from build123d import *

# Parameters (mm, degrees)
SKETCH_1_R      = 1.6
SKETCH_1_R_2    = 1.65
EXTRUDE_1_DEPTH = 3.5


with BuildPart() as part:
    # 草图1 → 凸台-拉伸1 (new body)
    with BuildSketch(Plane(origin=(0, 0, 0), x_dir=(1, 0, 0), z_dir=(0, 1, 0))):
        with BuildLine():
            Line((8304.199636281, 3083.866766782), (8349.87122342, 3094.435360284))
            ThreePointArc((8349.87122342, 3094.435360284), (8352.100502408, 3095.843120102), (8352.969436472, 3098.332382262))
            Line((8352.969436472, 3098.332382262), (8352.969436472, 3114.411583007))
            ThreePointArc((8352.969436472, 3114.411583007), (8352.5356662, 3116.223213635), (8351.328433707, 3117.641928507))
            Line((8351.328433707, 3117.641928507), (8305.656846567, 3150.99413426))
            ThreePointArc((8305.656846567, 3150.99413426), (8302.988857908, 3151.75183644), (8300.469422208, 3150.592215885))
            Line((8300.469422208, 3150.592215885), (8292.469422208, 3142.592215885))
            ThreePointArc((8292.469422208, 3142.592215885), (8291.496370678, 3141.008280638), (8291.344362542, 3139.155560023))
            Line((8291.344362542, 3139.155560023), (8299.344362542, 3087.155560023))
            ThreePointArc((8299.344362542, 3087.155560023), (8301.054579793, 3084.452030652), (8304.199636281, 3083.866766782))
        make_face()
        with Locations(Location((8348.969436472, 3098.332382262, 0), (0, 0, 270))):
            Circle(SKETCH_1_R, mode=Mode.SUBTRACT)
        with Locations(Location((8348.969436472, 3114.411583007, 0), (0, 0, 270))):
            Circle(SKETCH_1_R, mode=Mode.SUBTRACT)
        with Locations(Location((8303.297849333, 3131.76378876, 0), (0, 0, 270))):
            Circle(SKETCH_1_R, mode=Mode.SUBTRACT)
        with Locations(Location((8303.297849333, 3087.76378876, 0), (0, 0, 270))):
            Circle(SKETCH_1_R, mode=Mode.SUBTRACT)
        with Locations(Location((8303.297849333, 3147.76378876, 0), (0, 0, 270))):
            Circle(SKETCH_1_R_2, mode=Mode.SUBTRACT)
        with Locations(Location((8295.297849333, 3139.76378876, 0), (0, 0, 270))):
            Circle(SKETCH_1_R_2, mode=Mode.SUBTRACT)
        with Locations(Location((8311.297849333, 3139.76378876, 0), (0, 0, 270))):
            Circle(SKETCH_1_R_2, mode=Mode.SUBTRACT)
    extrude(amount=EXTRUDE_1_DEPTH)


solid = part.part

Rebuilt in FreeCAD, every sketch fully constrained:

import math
import FreeCAD as App
import Part
import Sketcher

V = App.Vector
Q = App.Units.Quantity

doc = App.newDocument("Part")
params = doc.addObject("Spreadsheet::Sheet", "Params")
for row, (alias, value) in enumerate([
    ("sketch1_radius", "4 mm"),
    ("sketch1_diameter", "3.2 mm"),
    ("sketch1_diameter2", "3.3 mm"),
    ("pad1_length", "3.5 mm"),
], start=1):
    params.set(f"A{row}", alias)
    params.set(f"B{row}", "=" + value)
    params.setAlias(f"B{row}", alias)

body = doc.addObject("PartDesign::Body", "Body")

# Sketch on XZ plane
sketch1 = doc.addObject("Sketcher::SketchObject", "Sketch")
body.addObject(sketch1)
sketch1.AttachmentSupport = (doc.XZ_Plane, [""])
sketch1.MapMode = "FlatFace"
sketch1.addGeometry([
    Part.LineSegment(V(8304.2, -3083.9, 0), V(8349.9, -3094.4, 0)),  # 0
    Part.ArcOfCircle(Part.Circle(V(8349, -3098.3, 0), V(0, 0, 1), 4), math.radians(0), math.radians(77)),  # 1
    Part.LineSegment(V(8353, -3098.3, 0), V(8353, -3114.4, 0)),  # 2
    Part.ArcOfCircle(Part.Circle(V(8349, -3114.4, 0), V(0, 0, 1), 4), math.radians(-54), math.radians(0)),  # 3
    Part.LineSegment(V(8351.3, -3117.6, 0), V(8305.7, -3151, 0)),  # 4
    Part.ArcOfCircle(Part.Circle(V(8303.3, -3147.8, 0), V(0, 0, 1), 4), math.radians(-135), math.radians(-54)),  # 5
    Part.LineSegment(V(8300.5, -3150.6, 0), V(8292.5, -3142.6, 0)),  # 6
    Part.ArcOfCircle(Part.Circle(V(8295.3, -3139.8, 0), V(0, 0, 1), 4), math.radians(171), math.radians(225)),  # 7
    Part.LineSegment(V(8291.3, -3139.2, 0), V(8299.3, -3087.2, 0)),  # 8
    Part.ArcOfCircle(Part.Circle(V(8303.3, -3087.8, 0), V(0, 0, 1), 4), math.radians(77), math.radians(171)),  # 9
    Part.Circle(V(8303.3, -3087.8, 0), V(0, 0, 1), 1.6),  # 10
    Part.Circle(V(8349, -3098.3, 0), V(0, 0, 1), 1.6),  # 11
    Part.Circle(V(8349, -3114.4, 0), V(0, 0, 1), 1.6),  # 12
    Part.Circle(V(8303.3, -3131.8, 0), V(0, 0, 1), 1.6),  # 13
    Part.Circle(V(8295.3, -3139.8, 0), V(0, 0, 1), 1.6),  # 14
    Part.Circle(V(8303.3, -3147.8, 0), V(0, 0, 1), 1.6),  # 15
    Part.Circle(V(8311.3, -3139.8, 0), V(0, 0, 1), 1.6),  # 16
], False)
sketch1.addConstraint([
    Sketcher.Constraint("Tangent", 0, 2, 1, 2),
    Sketcher.Constraint("Tangent", 1, 1, 2, 1),
    Sketcher.Constraint("Tangent", 2, 2, 3, 2),
    Sketcher.Constraint("Tangent", 3, 1, 4, 1),
    Sketcher.Constraint("Tangent", 4, 2, 5, 2),
    Sketcher.Constraint("Tangent", 5, 1, 6, 1),
    Sketcher.Constraint("Tangent", 6, 2, 7, 2),
    Sketcher.Constraint("Tangent", 7, 1, 8, 1),
    Sketcher.Constraint("Tangent", 8, 2, 9, 2),
    Sketcher.Constraint("Tangent", 9, 1, 0, 1),
    Sketcher.Constraint("Vertical", 2),
    Sketcher.Constraint("Coincident", 10, 3, 9, 3),
    Sketcher.Constraint("Coincident", 11, 3, 1, 3),
    Sketcher.Constraint("Coincident", 12, 3, 3, 3),
    Sketcher.Constraint("Coincident", 14, 3, 7, 3),
    Sketcher.Constraint("Coincident", 15, 3, 5, 3),
    Sketcher.Constraint("Equal", 1, 3),
    Sketcher.Constraint("Equal", 3, 5),
    Sketcher.Constraint("Equal", 5, 7),
    Sketcher.Constraint("Equal", 7, 9),
    Sketcher.Constraint("Equal", 10, 11),
    Sketcher.Constraint("Equal", 11, 12),
    Sketcher.Constraint("Equal", 12, 13),
    Sketcher.Constraint("Equal", 14, 15),
    Sketcher.Constraint("Equal", 15, 16),
    Sketcher.Constraint("Horizontal", 14, 3, 16, 3),
    Sketcher.Constraint("Vertical", 5, 3, 9, 3),
    Sketcher.Constraint("Vertical", 10, 3, 13, 3),
    Sketcher.Constraint("Radius", 1, Q("4 mm")),
    Sketcher.Constraint("Diameter", 10, Q("3.2 mm")),
    Sketcher.Constraint("Diameter", 14, Q("3.3 mm")),
    Sketcher.Constraint("Angle", 6, Q("135 deg")),
    Sketcher.Constraint("DistanceX", 7, 3, 5, 3, Q("8 mm")),
    Sketcher.Constraint("DistanceY", 7, 3, 9, 3, Q("52 mm")),
    Sketcher.Constraint("DistanceY", 7, 3, 13, 3, Q("8 mm")),
    Sketcher.Constraint("DistanceX", 5, 3, 16, 3, Q("8 mm")),
    Sketcher.Constraint("DistanceY", 2, 2, 2, 1, Q("16.079201 mm")),
    Sketcher.Constraint("DistanceX", 9, 1, 11, 3, Q("44.7698 mm")),
    Sketcher.Constraint("Distance", 0, Q("46.87845 mm")),
    Sketcher.Constraint("DistanceX", -1, 1, 5, 3, Q("8303.297849 mm")),
    Sketcher.Constraint("DistanceY", 5, 3, -1, 1, Q("3147.763789 mm")),
])
sketch1.setExpression("Constraints[28]", "Params.sketch1_radius")
sketch1.setExpression("Constraints[29]", "Params.sketch1_diameter")
sketch1.setExpression("Constraints[30]", "Params.sketch1_diameter2")
pad1 = doc.addObject("PartDesign::Pad", "Pad")
body.addObject(pad1)
pad1.Profile = sketch1
pad1.setExpression("Length", "Params.pad1_length")
pad1.Reversed = True

doc.recompute()
